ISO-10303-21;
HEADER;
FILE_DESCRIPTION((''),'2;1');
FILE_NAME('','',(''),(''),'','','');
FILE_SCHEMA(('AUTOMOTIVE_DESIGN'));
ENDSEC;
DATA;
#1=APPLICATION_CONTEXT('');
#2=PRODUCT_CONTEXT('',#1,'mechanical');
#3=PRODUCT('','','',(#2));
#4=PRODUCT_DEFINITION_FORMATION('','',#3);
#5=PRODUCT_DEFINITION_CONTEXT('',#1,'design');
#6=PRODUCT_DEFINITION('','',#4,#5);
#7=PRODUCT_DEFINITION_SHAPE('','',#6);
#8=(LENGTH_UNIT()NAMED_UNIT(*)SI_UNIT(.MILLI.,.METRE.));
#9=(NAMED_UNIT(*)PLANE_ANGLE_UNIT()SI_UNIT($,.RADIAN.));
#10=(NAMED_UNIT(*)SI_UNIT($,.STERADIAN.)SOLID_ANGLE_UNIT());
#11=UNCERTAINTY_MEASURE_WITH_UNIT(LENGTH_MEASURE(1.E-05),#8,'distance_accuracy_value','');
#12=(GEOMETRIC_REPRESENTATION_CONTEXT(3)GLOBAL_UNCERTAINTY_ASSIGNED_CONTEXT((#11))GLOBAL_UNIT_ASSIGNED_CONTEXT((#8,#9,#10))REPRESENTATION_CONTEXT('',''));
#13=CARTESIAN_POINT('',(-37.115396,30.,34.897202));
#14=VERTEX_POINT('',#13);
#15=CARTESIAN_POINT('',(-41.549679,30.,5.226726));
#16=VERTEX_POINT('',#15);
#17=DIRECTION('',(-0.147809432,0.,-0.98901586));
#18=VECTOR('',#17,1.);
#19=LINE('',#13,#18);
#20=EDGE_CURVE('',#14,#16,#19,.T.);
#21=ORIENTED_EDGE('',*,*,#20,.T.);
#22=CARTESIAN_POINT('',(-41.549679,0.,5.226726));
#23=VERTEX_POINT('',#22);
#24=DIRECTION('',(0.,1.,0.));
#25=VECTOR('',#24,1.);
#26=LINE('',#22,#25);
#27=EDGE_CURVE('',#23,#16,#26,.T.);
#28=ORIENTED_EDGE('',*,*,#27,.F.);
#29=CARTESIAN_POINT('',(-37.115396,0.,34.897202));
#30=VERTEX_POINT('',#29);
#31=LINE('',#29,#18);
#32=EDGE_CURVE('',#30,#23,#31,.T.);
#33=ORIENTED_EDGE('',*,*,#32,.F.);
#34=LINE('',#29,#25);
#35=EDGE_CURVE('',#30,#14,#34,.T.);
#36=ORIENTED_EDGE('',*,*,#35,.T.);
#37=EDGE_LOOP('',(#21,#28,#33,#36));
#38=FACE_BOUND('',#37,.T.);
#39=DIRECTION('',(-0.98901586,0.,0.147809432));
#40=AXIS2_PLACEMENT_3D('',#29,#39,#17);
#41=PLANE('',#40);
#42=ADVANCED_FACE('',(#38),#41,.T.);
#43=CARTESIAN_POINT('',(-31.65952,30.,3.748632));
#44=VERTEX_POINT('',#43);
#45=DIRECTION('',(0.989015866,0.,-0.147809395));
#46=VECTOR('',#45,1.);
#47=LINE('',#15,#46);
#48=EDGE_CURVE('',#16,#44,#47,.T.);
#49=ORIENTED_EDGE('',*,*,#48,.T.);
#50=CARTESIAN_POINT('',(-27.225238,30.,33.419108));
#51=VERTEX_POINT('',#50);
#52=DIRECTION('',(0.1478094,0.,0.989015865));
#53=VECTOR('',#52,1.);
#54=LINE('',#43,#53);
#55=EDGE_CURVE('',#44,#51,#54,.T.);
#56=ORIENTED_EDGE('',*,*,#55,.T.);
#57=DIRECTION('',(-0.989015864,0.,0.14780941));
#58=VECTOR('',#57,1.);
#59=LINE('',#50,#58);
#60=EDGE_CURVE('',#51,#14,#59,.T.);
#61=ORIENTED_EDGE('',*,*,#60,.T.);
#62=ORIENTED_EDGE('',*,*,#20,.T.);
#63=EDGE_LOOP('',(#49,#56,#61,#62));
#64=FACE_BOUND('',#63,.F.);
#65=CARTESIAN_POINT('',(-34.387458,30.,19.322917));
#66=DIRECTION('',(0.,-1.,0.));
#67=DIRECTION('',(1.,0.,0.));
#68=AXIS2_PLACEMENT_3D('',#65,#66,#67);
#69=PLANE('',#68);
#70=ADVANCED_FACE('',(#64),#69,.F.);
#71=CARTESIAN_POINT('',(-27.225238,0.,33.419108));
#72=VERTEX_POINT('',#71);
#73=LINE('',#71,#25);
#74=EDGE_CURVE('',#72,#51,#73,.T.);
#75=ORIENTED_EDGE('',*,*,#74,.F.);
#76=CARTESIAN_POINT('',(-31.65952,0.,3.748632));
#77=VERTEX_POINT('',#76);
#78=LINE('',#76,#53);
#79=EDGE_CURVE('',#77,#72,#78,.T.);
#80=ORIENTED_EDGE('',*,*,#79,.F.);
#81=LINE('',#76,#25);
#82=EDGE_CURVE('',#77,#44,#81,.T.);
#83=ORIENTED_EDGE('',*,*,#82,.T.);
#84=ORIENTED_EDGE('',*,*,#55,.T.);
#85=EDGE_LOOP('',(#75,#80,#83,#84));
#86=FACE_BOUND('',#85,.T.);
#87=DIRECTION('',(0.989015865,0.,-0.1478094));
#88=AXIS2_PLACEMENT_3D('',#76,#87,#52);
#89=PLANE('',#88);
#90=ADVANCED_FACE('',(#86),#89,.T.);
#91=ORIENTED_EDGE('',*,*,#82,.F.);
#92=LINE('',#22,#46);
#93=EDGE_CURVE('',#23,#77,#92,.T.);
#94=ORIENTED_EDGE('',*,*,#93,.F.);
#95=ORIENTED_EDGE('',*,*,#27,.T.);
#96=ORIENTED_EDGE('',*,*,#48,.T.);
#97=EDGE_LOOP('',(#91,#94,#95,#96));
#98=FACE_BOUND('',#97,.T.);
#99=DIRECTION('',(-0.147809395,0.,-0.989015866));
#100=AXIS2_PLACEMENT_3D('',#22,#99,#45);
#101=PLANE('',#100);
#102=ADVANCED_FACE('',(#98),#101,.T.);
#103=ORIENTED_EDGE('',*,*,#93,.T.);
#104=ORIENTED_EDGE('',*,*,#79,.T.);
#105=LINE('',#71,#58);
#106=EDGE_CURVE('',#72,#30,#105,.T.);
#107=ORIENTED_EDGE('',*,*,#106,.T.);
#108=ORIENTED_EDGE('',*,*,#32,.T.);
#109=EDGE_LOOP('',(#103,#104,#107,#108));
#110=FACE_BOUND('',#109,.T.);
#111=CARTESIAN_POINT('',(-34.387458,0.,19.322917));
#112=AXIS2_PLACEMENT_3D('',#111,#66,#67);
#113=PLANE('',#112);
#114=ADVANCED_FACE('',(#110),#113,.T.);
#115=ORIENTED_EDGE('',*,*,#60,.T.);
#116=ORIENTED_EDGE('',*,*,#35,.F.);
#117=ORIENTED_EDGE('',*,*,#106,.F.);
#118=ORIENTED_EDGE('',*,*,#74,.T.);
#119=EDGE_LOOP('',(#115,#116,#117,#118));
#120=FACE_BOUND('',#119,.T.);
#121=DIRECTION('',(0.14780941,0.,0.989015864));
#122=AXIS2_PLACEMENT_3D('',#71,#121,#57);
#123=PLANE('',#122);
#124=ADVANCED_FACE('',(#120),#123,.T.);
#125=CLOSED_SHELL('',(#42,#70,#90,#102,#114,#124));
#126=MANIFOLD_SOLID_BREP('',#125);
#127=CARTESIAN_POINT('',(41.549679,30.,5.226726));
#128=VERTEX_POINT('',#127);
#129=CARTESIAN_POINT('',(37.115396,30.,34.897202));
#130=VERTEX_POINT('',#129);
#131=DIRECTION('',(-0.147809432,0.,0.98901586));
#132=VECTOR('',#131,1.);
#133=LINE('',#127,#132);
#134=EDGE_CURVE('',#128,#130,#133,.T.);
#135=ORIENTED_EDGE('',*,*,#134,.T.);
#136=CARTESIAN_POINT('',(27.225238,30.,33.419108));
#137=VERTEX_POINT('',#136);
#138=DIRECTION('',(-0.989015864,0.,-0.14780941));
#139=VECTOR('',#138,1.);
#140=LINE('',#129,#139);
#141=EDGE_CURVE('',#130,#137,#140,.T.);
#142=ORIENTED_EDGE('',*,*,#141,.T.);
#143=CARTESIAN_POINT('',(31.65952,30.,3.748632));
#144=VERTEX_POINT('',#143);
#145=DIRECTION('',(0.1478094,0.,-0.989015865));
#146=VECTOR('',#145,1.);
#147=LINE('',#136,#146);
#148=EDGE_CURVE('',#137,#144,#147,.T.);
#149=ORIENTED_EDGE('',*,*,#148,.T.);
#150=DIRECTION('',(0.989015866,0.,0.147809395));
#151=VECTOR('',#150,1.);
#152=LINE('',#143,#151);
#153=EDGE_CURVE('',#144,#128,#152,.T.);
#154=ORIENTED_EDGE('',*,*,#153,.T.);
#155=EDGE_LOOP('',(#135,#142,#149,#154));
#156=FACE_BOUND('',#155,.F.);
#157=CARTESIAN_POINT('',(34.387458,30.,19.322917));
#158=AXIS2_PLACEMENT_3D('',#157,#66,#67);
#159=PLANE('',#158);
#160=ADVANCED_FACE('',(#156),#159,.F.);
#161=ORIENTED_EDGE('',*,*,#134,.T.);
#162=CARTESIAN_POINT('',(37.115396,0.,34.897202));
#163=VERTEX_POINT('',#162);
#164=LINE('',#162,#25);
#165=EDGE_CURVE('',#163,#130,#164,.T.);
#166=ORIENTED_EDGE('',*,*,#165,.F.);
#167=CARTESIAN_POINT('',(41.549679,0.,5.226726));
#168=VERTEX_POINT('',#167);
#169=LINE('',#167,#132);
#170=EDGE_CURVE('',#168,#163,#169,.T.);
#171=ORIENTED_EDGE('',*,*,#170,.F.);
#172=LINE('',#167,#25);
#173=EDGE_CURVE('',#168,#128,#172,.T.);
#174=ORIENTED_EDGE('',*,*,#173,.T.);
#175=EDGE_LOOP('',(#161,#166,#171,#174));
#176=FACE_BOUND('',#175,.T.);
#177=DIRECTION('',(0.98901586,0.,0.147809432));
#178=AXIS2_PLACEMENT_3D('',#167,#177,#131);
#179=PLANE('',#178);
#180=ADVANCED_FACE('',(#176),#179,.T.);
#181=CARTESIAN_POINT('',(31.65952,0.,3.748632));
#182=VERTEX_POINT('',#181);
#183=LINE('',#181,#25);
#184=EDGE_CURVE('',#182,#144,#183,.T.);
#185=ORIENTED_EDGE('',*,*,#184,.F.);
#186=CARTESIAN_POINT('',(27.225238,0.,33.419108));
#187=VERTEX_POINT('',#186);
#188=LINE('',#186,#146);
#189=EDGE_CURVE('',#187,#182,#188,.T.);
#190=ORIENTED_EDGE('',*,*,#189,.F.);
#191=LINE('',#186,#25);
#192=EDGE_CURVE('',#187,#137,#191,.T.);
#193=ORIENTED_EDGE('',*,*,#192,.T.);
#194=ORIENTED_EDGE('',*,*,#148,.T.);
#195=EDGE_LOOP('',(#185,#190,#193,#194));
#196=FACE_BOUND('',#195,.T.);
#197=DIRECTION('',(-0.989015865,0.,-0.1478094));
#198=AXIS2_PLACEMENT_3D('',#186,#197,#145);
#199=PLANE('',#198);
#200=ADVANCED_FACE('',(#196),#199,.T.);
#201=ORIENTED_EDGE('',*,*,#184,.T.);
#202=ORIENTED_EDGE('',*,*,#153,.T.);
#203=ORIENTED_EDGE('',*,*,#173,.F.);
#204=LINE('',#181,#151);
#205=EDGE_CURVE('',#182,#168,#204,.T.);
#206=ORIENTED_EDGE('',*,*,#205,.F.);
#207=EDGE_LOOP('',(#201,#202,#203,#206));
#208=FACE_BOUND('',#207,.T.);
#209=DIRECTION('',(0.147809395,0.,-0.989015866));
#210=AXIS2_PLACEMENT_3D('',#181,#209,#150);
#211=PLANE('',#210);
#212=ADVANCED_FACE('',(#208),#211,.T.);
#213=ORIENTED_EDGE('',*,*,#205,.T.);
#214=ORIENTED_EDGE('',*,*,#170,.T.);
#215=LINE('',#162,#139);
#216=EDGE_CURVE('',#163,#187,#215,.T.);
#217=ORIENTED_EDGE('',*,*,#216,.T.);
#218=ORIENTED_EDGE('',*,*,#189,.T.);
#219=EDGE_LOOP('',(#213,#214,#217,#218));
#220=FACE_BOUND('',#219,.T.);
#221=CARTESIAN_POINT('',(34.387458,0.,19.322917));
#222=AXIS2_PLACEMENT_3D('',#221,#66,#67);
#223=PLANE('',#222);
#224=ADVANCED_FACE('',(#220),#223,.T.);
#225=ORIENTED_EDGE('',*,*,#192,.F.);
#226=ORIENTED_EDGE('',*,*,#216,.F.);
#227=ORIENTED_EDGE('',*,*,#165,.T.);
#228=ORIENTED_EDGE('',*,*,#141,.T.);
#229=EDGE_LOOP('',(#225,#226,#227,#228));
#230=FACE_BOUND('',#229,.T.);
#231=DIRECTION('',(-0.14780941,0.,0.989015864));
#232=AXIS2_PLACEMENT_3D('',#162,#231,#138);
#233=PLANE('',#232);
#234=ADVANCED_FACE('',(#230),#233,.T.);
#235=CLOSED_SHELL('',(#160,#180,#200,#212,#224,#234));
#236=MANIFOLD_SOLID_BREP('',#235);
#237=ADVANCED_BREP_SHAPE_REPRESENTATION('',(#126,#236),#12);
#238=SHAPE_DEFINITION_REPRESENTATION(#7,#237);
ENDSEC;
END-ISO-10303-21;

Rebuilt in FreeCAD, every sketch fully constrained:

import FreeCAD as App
import Part
import Sketcher
from FreeCAD import Vector
Q = App.Units.Quantity

doc = App.newDocument("Part")
body = doc.addObject("PartDesign::Body", "Body")
body.AllowCompound = True

# Sketch on XZ plane
sketch1 = doc.addObject("Sketcher::SketchObject", "Sketch")
body.addObject(sketch1)
sketch1.AttachmentSupport = (doc.XZ_Plane, [""])
sketch1.MapMode = "FlatFace"
sketch1.addGeometry([
    Part.LineSegment(Vector(41.549679, 5.226726, 0), Vector(37.115396, 34.897202, 0)),  # 0
    Part.LineSegment(Vector(37.115396, 34.897202, 0), Vector(27.225238, 33.419108, 0)),  # 1
    Part.LineSegment(Vector(27.225238, 33.419108, 0), Vector(31.65952, 3.748632, 0)),  # 2
    Part.LineSegment(Vector(31.65952, 3.748632, 0), Vector(41.549679, 5.226726, 0)),  # 3
    Part.LineSegment(Vector(-27.225238, 33.419108, 0), Vector(-37.115396, 34.897202, 0)),  # 4
    Part.LineSegment(Vector(-37.115396, 34.897202, 0), Vector(-41.549679, 5.226726, 0)),  # 5
    Part.LineSegment(Vector(-41.549679, 5.226726, 0), Vector(-31.65952, 3.748632, 0)),  # 6
    Part.LineSegment(Vector(-31.65952, 3.748632, 0), Vector(-27.225238, 33.419108, 0)),  # 7
], False)
sketch1.addConstraint([
    Sketcher.Constraint("Coincident", 0, 2, 1, 1),
    Sketcher.Constraint("Coincident", 1, 2, 2, 1),
    Sketcher.Constraint("Coincident", 2, 2, 3, 1),
    Sketcher.Constraint("Coincident", 3, 2, 0, 1),
    Sketcher.Constraint("Coincident", 4, 2, 5, 1),
    Sketcher.Constraint("Coincident", 5, 2, 6, 1),
    Sketcher.Constraint("Coincident", 6, 2, 7, 1),
    Sketcher.Constraint("Coincident", 7, 2, 4, 1),
    Sketcher.Constraint("Symmetric", 0, 2, 4, 2, -2),
    Sketcher.Constraint("Symmetric", 3, 2, 5, 2, -2),
    Sketcher.Constraint("Symmetric", 2, 2, 6, 2, -2),
    Sketcher.Constraint("Symmetric", 1, 2, 7, 2, -2),
    Sketcher.Constraint("Perpendicular", 0, 1),
    Sketcher.Constraint("Perpendicular", 1, 2),
    Sketcher.Constraint("Perpendicular", 2, 3),
    Sketcher.Constraint("Distance", 0, 30.0),
    Sketcher.Constraint("Distance", 1, 9.999999),
    Sketcher.Constraint("Angle", 0, Q("98.500001 deg")),
    Sketcher.Constraint("DistanceX", 5, 2, 2, 2, 73.209199),
    Sketcher.Constraint("DistanceY", -1, 1, 0, 2, 34.897202),
])
pad1 = doc.addObject("PartDesign::Pad", "Pad")
body.addObject(pad1)
pad1.Profile = sketch1
pad1.Length = 30
pad1.Reversed = True

doc.recompute()
